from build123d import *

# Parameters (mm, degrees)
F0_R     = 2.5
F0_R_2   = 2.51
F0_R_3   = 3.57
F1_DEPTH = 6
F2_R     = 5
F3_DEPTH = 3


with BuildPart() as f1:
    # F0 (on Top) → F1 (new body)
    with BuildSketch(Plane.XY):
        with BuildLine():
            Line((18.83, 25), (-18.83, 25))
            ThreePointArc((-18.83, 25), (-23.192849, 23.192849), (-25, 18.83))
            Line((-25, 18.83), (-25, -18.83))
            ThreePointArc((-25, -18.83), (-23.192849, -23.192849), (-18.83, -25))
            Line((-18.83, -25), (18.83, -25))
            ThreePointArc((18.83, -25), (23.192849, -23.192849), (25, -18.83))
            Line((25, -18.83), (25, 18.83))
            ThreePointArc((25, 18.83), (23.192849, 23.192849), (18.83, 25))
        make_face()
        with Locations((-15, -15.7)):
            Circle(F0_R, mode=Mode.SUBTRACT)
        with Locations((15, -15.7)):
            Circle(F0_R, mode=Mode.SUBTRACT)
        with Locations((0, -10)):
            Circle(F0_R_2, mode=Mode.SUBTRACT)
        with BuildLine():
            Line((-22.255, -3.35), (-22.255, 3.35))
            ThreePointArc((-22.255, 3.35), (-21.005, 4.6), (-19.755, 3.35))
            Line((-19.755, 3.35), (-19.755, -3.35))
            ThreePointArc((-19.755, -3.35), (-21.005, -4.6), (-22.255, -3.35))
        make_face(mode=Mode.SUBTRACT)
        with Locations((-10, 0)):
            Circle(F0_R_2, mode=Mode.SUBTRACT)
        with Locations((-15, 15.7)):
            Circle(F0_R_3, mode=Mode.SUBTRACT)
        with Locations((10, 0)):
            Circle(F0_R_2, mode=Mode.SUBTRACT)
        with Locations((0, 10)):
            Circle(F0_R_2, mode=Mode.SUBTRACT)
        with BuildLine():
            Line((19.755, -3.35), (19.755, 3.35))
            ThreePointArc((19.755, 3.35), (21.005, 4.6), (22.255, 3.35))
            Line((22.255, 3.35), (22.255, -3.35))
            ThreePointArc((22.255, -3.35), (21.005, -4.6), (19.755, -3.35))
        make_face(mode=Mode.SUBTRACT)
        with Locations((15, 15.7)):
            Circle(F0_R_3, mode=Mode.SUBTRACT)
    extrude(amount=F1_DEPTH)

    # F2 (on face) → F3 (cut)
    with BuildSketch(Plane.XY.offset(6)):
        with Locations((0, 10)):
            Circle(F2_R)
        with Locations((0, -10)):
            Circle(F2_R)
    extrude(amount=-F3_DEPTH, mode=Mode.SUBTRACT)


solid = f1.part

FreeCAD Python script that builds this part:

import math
import FreeCAD as App
import Part
import Sketcher

V = App.Vector

doc = App.newDocument("Part")
body = doc.addObject("PartDesign::Body", "Body")

sketch1 = body.newObject("Sketcher::SketchObject", "Sketch")
sketch1.AttachmentSupport = (doc.getObject("XY_Plane"), [""])
sketch1.MapMode = "FlatFace"
sketch1.addGeometry([
    Part.LineSegment(V(18.8, 25, 0), V(-18.8, 25, 0)),
    Part.ArcOfCircle(Part.Circle(V(-18.8, 18.8, 0), V(0, 0, 1), 6.2), math.radians(90), math.radians(180)),
    Part.LineSegment(V(-25, 18.8, 0), V(-25, -18.8, 0)),
    Part.ArcOfCircle(Part.Circle(V(-18.8, -18.8, 0), V(0, 0, 1), 6.2), math.radians(180), math.radians(270)),
    Part.LineSegment(V(-18.8, -25, 0), V(18.8, -25, 0)),
    Part.ArcOfCircle(Part.Circle(V(18.8, -18.8, 0), V(0, 0, 1), 6.2), math.radians(-90), math.radians(0)),
    Part.LineSegment(V(25, -18.8, 0), V(25, 18.8, 0)),
    Part.ArcOfCircle(Part.Circle(V(18.8, 18.8, 0), V(0, 0, 1), 6.2), math.radians(0), math.radians(90)),
    Part.Circle(V(-15, -15.7, 0), V(0, 0, 1), 2.5),
    Part.ArcOfCircle(Part.Circle(V(-21, -3.4, 0), V(0, 0, 1), 1.2), math.radians(180), math.radians(360)),
    Part.LineSegment(V(-22.3, -3.4, 0), V(-22.3, 3.4, 0)),
    Part.ArcOfCircle(Part.Circle(V(-21, 3.4, 0), V(0, 0, 1), 1.2), math.radians(0), math.radians(180)),
    Part.LineSegment(V(-19.8, 3.4, 0), V(-19.8, -3.4, 0)),
    Part.Circle(V(-10, 0, 0), V(0, 0, 1), 2.5),
    Part.Circle(V(0, -10, 0), V(0, 0, 1), 2.5),
    Part.Circle(V(15, -15.7, 0), V(0, 0, 1), 2.5),
    Part.Circle(V(10, 0, 0), V(0, 0, 1), 2.5),
    Part.ArcOfCircle(Part.Circle(V(21, -3.4, 0), V(0, 0, 1), 1.2), math.radians(180), math.radians(360)),
    Part.LineSegment(V(19.8, -3.4, 0), V(19.8, 3.4, 0)),
    Part.ArcOfCircle(Part.Circle(V(21, 3.4, 0), V(0, 0, 1), 1.2), math.radians(0), math.radians(180)),
    Part.LineSegment(V(22.3, 3.4, 0), V(22.3, -3.4, 0)),
    Part.Circle(V(-15, 15.7, 0), V(0, 0, 1), 3.6),
    Part.Circle(V(0, 10, 0), V(0, 0, 1), 2.5),
    Part.Circle(V(15, 15.7, 0), V(0, 0, 1), 3.6),
], False)
sketch1.addConstraint([
    Sketcher.Constraint("Tangent", 0, 2, 1, 1),
    Sketcher.Constraint("Tangent", 1, 2, 2, 1),
    Sketcher.Constraint("Tangent", 2, 2, 3, 1),
    Sketcher.Constraint("Tangent", 3, 2, 4, 1),
    Sketcher.Constraint("Tangent", 4, 2, 5, 1),
    Sketcher.Constraint("Tangent", 5, 2, 6, 1),
    Sketcher.Constraint("Tangent", 6, 2, 7, 1),
    Sketcher.Constraint("Tangent", 7, 2, 0, 1),
    Sketcher.Constraint("Tangent", 9, 1, 10, 1),
    Sketcher.Constraint("Tangent", 10, 2, 11, 2),
    Sketcher.Constraint("Tangent", 11, 1, 12, 1),
    Sketcher.Constraint("Tangent", 12, 2, 9, 2),
    Sketcher.Constraint("Tangent", 17, 1, 18, 1),
    Sketcher.Constraint("Tangent", 18, 2, 19, 2),
    Sketcher.Constraint("Tangent", 19, 1, 20, 1),
    Sketcher.Constraint("Tangent", 20, 2, 17, 2),
    Sketcher.Constraint("Horizontal", 0),
    Sketcher.Constraint("Vertical", 2),
    Sketcher.Constraint("Horizontal", 4),
    Sketcher.Constraint("Vertical", 6),
    Sketcher.Constraint("Vertical", 10),
    Sketcher.Constraint("Vertical", 12),
    Sketcher.Constraint("Vertical", 18),
    Sketcher.Constraint("Vertical", 20),
    Sketcher.Constraint("Equal", 1, 3),
    Sketcher.Constraint("Equal", 3, 5),
    Sketcher.Constraint("Equal", 5, 7),
    Sketcher.Constraint("Equal", 13, 14),
    Sketcher.Constraint("Equal", 8, 15),
    Sketcher.Constraint("Equal", 14, 16),
    Sketcher.Constraint("Equal", 11, 17),
    Sketcher.Constraint("Equal", 16, 22),
    Sketcher.Constraint("Equal", 21, 23),
    Sketcher.Constraint("Symmetric", 1, 3, 5, 3, -1, 1),
    Sketcher.Constraint("Symmetric", 13, 3, 16, 3, -1, 1),
    Sketcher.Constraint("Symmetric", 11, 3, 17, 3, -1, 1),
    Sketcher.Constraint("Symmetric", 15, 3, 21, 3, -1, 1),
    Sketcher.Constraint("Symmetric", 14, 3, 22, 3, -1, 1),
    Sketcher.Constraint("Symmetric", 8, 3, 23, 3, -1, 1),
    Sketcher.Constraint("Symmetric", 8, 3, 15, 3, -2),
    Sketcher.Constraint("PointOnObject", 13, 3, -1),
    Sketcher.Constraint("PointOnObject", 14, 3, -2),
    Sketcher.Constraint("Horizontal", 9, 3, 17, 3),
    Sketcher.Constraint("Horizontal", 11, 3, 19, 3),
    Sketcher.Constraint("Equal", 4, 2),
    Sketcher.Constraint("Diameter", 8, 5.0),
    Sketcher.Constraint("Diameter", 13, 5.02),
    Sketcher.Constraint("Diameter", 21, 7.14),
    Sketcher.Constraint("Radius", 1, 6.169999),
    Sketcher.Constraint("Radius", 9, 1.25),
    Sketcher.Constraint("DistanceY", 10, 1, 10, 2, 6.7),
    Sketcher.Constraint("DistanceX", 8, 3, -1, 1, 15.0),
    Sketcher.Constraint("DistanceX", 13, 3, -1, 1, 10.0),
    Sketcher.Constraint("DistanceY", 14, 3, -1, 1, 10.0),
    Sketcher.Constraint("DistanceY", -1, 1, 0, 2, 25.0),
    Sketcher.Constraint("DistanceY", 8, 3, -1, 1, 15.7),
    Sketcher.Constraint("DistanceX", 9, 3, -1, 1, 21.005),
])
pad1 = body.newObject("PartDesign::Pad", "Pad")
pad1.Profile = sketch1
pad1.Length = 6

sketch2 = body.newObject("Sketcher::SketchObject", "Sketch001")
sketch2.AttachmentSupport = (doc.getObject("XY_Plane"), [""])
sketch2.MapMode = "FlatFace"
sketch2.AttachmentOffset = App.Placement(V(0, 0, 6), App.Rotation())
sketch2.addGeometry([
    Part.Circle(V(0, 10, 0), V(0, 0, 1), 5),
    Part.Circle(V(0, -10, 0), V(0, 0, 1), 5),
], False)
sketch2.addConstraint([
    Sketcher.Constraint("Equal", 0, 1),
    Sketcher.Constraint("Symmetric", 0, 3, 1, 3, -1, 1),
    Sketcher.Constraint("PointOnObject", 0, 3, -2),
    Sketcher.Constraint("Diameter", 0, 10.0),
    Sketcher.Constraint("DistanceY", -1, 1, 0, 3, 10.0),
])
pocket1 = body.newObject("PartDesign::Pocket", "Pocket")
pocket1.Profile = sketch2
pocket1.Length = 3

doc.recompute()
